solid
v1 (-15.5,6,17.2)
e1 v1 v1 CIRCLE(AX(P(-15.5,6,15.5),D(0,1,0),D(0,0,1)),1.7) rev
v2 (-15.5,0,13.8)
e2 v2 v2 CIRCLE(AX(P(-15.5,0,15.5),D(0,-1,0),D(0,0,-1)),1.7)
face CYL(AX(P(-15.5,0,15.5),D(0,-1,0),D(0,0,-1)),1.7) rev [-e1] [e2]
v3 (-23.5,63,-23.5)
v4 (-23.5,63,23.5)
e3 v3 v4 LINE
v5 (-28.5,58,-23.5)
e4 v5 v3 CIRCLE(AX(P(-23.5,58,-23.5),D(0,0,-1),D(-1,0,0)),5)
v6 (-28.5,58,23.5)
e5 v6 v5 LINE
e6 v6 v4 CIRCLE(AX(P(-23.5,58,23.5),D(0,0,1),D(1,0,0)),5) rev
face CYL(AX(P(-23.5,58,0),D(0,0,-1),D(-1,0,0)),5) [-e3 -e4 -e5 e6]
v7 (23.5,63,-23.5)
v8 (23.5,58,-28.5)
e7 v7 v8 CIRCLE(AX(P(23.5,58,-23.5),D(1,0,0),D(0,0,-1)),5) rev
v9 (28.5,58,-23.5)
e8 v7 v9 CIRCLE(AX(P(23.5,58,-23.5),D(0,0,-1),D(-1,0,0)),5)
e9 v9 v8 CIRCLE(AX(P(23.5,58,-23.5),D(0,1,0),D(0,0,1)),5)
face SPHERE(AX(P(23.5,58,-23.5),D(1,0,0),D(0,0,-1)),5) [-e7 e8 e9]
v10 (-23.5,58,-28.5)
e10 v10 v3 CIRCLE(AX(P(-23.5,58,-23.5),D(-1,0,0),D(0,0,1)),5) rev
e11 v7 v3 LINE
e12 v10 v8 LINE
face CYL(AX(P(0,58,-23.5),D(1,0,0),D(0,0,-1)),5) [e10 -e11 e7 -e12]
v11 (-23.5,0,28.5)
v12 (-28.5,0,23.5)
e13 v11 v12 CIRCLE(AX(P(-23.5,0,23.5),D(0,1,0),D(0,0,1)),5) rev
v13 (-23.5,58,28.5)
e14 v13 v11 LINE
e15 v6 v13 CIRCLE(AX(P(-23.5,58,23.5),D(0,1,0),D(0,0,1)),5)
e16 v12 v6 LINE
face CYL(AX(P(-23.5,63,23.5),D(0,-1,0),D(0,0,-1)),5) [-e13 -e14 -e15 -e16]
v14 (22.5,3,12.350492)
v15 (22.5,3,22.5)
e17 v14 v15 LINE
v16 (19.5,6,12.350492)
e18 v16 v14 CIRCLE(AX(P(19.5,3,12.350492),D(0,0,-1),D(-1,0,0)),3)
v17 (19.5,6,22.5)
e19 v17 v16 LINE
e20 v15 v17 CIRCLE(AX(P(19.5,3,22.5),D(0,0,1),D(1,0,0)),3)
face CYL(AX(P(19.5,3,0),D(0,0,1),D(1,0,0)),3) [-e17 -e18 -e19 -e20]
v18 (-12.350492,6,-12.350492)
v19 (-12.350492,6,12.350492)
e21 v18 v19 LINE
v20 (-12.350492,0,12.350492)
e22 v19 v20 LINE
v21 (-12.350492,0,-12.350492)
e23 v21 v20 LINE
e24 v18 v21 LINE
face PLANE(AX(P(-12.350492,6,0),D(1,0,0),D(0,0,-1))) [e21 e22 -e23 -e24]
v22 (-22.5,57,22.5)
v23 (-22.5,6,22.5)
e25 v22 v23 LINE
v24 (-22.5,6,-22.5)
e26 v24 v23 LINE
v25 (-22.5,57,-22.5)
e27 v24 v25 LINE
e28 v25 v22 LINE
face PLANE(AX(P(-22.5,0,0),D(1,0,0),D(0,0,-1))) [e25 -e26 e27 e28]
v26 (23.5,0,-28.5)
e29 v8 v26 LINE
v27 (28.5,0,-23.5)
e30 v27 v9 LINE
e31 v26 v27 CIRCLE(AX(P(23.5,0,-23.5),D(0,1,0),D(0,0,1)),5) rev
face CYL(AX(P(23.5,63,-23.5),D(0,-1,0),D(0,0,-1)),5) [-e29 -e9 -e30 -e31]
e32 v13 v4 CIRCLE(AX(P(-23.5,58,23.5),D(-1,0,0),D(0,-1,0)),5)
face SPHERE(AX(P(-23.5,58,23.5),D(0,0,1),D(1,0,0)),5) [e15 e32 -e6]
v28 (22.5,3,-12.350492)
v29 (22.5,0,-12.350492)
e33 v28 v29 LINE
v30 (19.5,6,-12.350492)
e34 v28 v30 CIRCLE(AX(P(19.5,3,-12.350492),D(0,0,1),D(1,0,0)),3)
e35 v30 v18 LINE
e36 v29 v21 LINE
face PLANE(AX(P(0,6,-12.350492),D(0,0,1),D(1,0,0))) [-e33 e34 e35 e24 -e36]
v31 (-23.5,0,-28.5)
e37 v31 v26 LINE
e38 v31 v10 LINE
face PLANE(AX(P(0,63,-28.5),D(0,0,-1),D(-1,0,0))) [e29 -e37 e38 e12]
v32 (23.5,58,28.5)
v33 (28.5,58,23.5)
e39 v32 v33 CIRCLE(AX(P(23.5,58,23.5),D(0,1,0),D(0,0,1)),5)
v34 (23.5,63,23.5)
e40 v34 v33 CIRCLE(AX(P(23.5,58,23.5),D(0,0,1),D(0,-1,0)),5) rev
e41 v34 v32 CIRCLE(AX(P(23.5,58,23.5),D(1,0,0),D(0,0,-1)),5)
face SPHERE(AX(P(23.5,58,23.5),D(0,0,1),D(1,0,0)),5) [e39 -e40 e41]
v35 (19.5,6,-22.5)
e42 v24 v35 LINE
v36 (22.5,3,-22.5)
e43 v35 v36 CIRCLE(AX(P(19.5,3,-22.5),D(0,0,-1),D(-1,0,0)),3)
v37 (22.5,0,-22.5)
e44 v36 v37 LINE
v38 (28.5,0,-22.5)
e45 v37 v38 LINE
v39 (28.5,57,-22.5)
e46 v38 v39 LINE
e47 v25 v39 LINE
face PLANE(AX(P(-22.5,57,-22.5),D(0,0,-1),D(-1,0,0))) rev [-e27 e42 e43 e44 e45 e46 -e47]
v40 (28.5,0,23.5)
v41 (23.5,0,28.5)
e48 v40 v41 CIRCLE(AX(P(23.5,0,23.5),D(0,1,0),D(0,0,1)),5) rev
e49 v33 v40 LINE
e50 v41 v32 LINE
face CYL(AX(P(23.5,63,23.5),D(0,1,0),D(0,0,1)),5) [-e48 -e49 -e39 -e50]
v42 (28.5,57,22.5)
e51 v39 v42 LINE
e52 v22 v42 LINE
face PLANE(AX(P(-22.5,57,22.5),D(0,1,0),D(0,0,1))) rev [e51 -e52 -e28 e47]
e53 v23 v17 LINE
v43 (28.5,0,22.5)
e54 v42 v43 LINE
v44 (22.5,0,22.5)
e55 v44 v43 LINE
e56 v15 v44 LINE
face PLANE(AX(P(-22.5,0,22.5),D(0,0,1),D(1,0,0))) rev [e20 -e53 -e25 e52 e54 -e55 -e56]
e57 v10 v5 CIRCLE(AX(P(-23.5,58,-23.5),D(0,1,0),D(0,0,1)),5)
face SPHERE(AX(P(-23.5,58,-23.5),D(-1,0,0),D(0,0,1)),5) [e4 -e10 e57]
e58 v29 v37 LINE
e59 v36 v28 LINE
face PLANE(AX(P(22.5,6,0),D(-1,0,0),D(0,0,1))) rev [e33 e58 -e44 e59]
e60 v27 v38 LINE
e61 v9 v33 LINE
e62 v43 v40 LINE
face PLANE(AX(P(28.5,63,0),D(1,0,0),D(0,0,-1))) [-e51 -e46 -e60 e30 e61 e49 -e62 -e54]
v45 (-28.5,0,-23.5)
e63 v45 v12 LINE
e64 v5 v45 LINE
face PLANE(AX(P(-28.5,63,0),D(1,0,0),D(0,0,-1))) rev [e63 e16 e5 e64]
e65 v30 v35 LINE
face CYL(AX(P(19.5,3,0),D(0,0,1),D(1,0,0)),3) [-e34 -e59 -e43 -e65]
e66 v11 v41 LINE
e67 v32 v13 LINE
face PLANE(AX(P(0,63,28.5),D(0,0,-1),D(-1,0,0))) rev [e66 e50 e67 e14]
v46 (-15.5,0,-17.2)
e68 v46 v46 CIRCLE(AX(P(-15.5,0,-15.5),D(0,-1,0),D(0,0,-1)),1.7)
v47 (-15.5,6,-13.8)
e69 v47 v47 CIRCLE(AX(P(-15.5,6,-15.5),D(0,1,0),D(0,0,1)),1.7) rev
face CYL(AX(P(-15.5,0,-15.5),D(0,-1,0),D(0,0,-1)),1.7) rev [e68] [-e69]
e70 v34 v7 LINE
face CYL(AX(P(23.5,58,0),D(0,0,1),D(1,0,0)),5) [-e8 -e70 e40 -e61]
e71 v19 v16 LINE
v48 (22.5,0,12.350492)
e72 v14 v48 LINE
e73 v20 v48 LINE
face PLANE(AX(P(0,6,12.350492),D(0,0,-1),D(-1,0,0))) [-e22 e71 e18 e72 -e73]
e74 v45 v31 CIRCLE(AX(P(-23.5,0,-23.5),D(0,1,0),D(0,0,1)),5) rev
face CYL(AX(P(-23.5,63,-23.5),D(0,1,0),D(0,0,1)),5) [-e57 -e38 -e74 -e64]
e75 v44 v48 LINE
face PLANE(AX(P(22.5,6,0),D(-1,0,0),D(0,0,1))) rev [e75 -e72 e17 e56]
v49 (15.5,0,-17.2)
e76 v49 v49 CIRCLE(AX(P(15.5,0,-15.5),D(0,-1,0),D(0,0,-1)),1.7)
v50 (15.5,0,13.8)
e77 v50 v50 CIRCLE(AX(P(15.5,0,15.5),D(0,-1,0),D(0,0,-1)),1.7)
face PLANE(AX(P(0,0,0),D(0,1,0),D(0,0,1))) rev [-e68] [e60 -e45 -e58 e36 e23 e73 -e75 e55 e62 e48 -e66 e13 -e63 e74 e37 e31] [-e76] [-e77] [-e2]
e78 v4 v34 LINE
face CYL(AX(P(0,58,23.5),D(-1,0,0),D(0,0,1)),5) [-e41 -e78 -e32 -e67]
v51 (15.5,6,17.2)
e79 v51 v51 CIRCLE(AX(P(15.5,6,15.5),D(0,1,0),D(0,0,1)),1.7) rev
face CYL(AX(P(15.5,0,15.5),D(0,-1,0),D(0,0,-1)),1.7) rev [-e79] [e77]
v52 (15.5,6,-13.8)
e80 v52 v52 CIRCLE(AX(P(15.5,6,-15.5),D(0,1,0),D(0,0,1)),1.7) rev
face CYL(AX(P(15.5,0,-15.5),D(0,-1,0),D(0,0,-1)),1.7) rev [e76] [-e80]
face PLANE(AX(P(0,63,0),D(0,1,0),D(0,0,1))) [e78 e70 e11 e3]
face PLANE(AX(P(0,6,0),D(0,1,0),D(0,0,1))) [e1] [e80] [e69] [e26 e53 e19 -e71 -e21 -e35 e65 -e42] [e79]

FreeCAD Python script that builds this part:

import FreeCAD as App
import Part
import Sketcher
Q = App.Units.Quantity


def edges_at(feature, points):
    """Names of the edges that pass closest to the given points."""
    edges = feature.Shape.Edges
    near = lambda p: min(range(len(edges)), key=lambda i: edges[i].distToShape(Part.Vertex(*p))[0])
    return sorted({f"Edge{near(p) + 1}" for p in points})


def add_polygon(sketch, points):
    """Adds a closed chain of lines whose ends are joined by coincident constraints."""
    first, n = sketch.GeometryCount, len(points)
    for a, b in zip(points, points[1:] + points[:1]):
        sketch.addGeometry(Part.LineSegment(App.Vector(*a, 0), App.Vector(*b, 0)), False)
    for i in range(n):
        sketch.addConstraint(Sketcher.Constraint("Coincident", first + i, 2, first + (i + 1) % n, 1))

doc = App.newDocument("Part")
body = doc.addObject("PartDesign::Body", "Body")

sketch1 = body.newObject("Sketcher::SketchObject", "Sketch")
sketch1.AttachmentSupport = (doc.getObject("XZ_Plane"), [""])
sketch1.MapMode = "FlatFace"
add_polygon(sketch1, [(-28, -28), (-28, 28), (28, 28), (28, -28)])
sketch1.addConstraint(Sketcher.Constraint("Vertical", 0))
sketch1.addConstraint(Sketcher.Constraint("Horizontal", 1))
sketch1.addConstraint(Sketcher.Constraint("Vertical", 2))
sketch1.addConstraint(Sketcher.Constraint("Horizontal", 3))
sketch1.addConstraint(Sketcher.Constraint("Symmetric", 0, 2, 2, 2, -1, 1))
sketch1.addConstraint(Sketcher.Constraint("Equal", 3, 0))
sketch1.addConstraint(Sketcher.Constraint("DistanceX", 1, 1, 1, 2, Q("57 mm")))
pad1 = body.newObject("PartDesign::Pad", "Pad")
pad1.Profile = sketch1
pad1.Length = 63
pad1.Reversed = True

sketch2 = body.newObject("Sketcher::SketchObject", "Sketch001")
sketch2.AttachmentSupport = (doc.getObject("YZ_Plane"), [""])
sketch2.MapMode = "FlatFace"
add_polygon(sketch2, [(57, 22), (0, 22), (0, -22), (57, -22)])
sketch2.addConstraint(Sketcher.Constraint("Horizontal", 0))
sketch2.addConstraint(Sketcher.Constraint("Vertical", 1))
sketch2.addConstraint(Sketcher.Constraint("Horizontal", 2))
sketch2.addConstraint(Sketcher.Constraint("Vertical", 3))
sketch2.addConstraint(Sketcher.Constraint("Symmetric", 0, 2, 1, 2, -1, 1))
sketch2.addConstraint(Sketcher.Constraint("DistanceX", 0, 2, 0, 1, Q("57 mm")))
sketch2.addConstraint(Sketcher.Constraint("DistanceY", 1, 2, 1, 1, Q("45 mm")))
pocket1 = body.newObject("PartDesign::Pocket", "Pocket")
pocket1.Profile = sketch2
pocket1.Type = "TwoLengths"
pocket1.Length = 29.5
pocket1.Length2 = 22.5
pocket1.Reversed = True

sketch3 = body.newObject("Sketcher::SketchObject", "Sketch002")
sketch3.AttachmentSupport = (doc.getObject("XZ_Plane"), [""])
sketch3.MapMode = "FlatFace"
add_polygon(sketch3, [(22, -22), (-22, -22), (-22, 22), (22, 22), (22, 12), (-12, 12), (-12, -12), (22, -12)])
sketch3.addConstraint(Sketcher.Constraint("Horizontal", 0))
sketch3.addConstraint(Sketcher.Constraint("Vertical", 1))
sketch3.addConstraint(Sketcher.Constraint("Horizontal", 2))
sketch3.addConstraint(Sketcher.Constraint("Vertical", 3))
sketch3.addConstraint(Sketcher.Constraint("Horizontal", 4))
sketch3.addConstraint(Sketcher.Constraint("Vertical", 5))
sketch3.addConstraint(Sketcher.Constraint("Horizontal", 6))
sketch3.addConstraint(Sketcher.Constraint("Vertical", 7))
sketch3.addConstraint(Sketcher.Constraint("Symmetric", 0, 2, 2, 2, -1, 1))
sketch3.addConstraint(Sketcher.Constraint("Symmetric", 3, 2, 6, 2, -1))
sketch3.addConstraint(Sketcher.Constraint("Equal", 2, 1))
sketch3.addConstraint(Sketcher.Constraint("DistanceX", 0, 2, 0, 1, Q("45 mm")))
sketch3.addConstraint(Sketcher.Constraint("DistanceX", 4, 2, 4, 1, Q("34.850492 mm")))
sketch3.addConstraint(Sketcher.Constraint("DistanceY", 3, 2, 3, 1, Q("10.149508 mm")))
pad2 = body.newObject("PartDesign::Pad", "Pad001")
pad2.Profile = sketch3
pad2.Length = 6
pad2.Reversed = True

sketch4 = body.newObject("Sketcher::SketchObject", "Sketch003")
sketch4.AttachmentSupport = (doc.getObject("XZ_Plane"), [""])
sketch4.MapMode = "FlatFace"
sketch4.addGeometry(Part.Circle(App.Vector(-15.5, 15.5, 0), App.Vector(0, 0, 1), 1.7), False)
sketch4.addGeometry(Part.Circle(App.Vector(-15.5, -15.5, 0), App.Vector(0, 0, 1), 1.7), False)
sketch4.addGeometry(Part.Circle(App.Vector(15.5, -15.5, 0), App.Vector(0, 0, 1), 1.7), False)
sketch4.addGeometry(Part.Circle(App.Vector(15.5, 15.5, 0), App.Vector(0, 0, 1), 1.7), False)
sketch4.addConstraint(Sketcher.Constraint("Equal", 0, 1))
sketch4.addConstraint(Sketcher.Constraint("Equal", 1, 2))
sketch4.addConstraint(Sketcher.Constraint("Equal", 2, 3))
sketch4.addConstraint(Sketcher.Constraint("Symmetric", 0, 3, 2, 3, -1, 1))
sketch4.addConstraint(Sketcher.Constraint("Symmetric", 1, 3, 3, 3, -1, 1))
sketch4.addConstraint(Sketcher.Constraint("Symmetric", 1, 3, 2, 3, -2))
sketch4.addConstraint(Sketcher.Constraint("Diameter", 0, Q("3.4 mm")))
sketch4.addConstraint(Sketcher.Constraint("DistanceY", 1, 3, 0, 3, Q("31 mm")))
sketch4.addConstraint(Sketcher.Constraint("DistanceX", 1, 3, 2, 3, Q("31 mm")))
doc.recompute()
hole = body.newObject("PartDesign::Hole", "Hole")
hole.Profile = sketch4
hole.ThreadType = "None"
hole.Diameter = 3.4
hole.DepthType = "Dimension"
hole.Depth = 6
hole.DrillPoint = "Angled"
hole.DrillPointAngle = 118
doc.recompute()

fillet = body.newObject("PartDesign::Fillet", "Fillet")
fillet.Base = (hole, edges_at(hole, [
    (0, 63, -28.5),
    (-28.5, 63, 0),
    (0, 63, 28.5),
    (28.5, 63, 0),
    (28.5, 31.5, 28.5),
    (-28.5, 31.5, 28.5),
    (-28.5, 31.5, -28.5),
    (28.5, 31.5, -28.5),
]))
fillet.Radius = 5
doc.recompute()

fillet2 = body.newObject("PartDesign::Fillet", "Fillet001")
fillet2.Base = (fillet, edges_at(fillet, [(22.5, 6, -17.425), (22.5, 6, 17.425)]))
fillet2.Radius = 3

doc.recompute()
